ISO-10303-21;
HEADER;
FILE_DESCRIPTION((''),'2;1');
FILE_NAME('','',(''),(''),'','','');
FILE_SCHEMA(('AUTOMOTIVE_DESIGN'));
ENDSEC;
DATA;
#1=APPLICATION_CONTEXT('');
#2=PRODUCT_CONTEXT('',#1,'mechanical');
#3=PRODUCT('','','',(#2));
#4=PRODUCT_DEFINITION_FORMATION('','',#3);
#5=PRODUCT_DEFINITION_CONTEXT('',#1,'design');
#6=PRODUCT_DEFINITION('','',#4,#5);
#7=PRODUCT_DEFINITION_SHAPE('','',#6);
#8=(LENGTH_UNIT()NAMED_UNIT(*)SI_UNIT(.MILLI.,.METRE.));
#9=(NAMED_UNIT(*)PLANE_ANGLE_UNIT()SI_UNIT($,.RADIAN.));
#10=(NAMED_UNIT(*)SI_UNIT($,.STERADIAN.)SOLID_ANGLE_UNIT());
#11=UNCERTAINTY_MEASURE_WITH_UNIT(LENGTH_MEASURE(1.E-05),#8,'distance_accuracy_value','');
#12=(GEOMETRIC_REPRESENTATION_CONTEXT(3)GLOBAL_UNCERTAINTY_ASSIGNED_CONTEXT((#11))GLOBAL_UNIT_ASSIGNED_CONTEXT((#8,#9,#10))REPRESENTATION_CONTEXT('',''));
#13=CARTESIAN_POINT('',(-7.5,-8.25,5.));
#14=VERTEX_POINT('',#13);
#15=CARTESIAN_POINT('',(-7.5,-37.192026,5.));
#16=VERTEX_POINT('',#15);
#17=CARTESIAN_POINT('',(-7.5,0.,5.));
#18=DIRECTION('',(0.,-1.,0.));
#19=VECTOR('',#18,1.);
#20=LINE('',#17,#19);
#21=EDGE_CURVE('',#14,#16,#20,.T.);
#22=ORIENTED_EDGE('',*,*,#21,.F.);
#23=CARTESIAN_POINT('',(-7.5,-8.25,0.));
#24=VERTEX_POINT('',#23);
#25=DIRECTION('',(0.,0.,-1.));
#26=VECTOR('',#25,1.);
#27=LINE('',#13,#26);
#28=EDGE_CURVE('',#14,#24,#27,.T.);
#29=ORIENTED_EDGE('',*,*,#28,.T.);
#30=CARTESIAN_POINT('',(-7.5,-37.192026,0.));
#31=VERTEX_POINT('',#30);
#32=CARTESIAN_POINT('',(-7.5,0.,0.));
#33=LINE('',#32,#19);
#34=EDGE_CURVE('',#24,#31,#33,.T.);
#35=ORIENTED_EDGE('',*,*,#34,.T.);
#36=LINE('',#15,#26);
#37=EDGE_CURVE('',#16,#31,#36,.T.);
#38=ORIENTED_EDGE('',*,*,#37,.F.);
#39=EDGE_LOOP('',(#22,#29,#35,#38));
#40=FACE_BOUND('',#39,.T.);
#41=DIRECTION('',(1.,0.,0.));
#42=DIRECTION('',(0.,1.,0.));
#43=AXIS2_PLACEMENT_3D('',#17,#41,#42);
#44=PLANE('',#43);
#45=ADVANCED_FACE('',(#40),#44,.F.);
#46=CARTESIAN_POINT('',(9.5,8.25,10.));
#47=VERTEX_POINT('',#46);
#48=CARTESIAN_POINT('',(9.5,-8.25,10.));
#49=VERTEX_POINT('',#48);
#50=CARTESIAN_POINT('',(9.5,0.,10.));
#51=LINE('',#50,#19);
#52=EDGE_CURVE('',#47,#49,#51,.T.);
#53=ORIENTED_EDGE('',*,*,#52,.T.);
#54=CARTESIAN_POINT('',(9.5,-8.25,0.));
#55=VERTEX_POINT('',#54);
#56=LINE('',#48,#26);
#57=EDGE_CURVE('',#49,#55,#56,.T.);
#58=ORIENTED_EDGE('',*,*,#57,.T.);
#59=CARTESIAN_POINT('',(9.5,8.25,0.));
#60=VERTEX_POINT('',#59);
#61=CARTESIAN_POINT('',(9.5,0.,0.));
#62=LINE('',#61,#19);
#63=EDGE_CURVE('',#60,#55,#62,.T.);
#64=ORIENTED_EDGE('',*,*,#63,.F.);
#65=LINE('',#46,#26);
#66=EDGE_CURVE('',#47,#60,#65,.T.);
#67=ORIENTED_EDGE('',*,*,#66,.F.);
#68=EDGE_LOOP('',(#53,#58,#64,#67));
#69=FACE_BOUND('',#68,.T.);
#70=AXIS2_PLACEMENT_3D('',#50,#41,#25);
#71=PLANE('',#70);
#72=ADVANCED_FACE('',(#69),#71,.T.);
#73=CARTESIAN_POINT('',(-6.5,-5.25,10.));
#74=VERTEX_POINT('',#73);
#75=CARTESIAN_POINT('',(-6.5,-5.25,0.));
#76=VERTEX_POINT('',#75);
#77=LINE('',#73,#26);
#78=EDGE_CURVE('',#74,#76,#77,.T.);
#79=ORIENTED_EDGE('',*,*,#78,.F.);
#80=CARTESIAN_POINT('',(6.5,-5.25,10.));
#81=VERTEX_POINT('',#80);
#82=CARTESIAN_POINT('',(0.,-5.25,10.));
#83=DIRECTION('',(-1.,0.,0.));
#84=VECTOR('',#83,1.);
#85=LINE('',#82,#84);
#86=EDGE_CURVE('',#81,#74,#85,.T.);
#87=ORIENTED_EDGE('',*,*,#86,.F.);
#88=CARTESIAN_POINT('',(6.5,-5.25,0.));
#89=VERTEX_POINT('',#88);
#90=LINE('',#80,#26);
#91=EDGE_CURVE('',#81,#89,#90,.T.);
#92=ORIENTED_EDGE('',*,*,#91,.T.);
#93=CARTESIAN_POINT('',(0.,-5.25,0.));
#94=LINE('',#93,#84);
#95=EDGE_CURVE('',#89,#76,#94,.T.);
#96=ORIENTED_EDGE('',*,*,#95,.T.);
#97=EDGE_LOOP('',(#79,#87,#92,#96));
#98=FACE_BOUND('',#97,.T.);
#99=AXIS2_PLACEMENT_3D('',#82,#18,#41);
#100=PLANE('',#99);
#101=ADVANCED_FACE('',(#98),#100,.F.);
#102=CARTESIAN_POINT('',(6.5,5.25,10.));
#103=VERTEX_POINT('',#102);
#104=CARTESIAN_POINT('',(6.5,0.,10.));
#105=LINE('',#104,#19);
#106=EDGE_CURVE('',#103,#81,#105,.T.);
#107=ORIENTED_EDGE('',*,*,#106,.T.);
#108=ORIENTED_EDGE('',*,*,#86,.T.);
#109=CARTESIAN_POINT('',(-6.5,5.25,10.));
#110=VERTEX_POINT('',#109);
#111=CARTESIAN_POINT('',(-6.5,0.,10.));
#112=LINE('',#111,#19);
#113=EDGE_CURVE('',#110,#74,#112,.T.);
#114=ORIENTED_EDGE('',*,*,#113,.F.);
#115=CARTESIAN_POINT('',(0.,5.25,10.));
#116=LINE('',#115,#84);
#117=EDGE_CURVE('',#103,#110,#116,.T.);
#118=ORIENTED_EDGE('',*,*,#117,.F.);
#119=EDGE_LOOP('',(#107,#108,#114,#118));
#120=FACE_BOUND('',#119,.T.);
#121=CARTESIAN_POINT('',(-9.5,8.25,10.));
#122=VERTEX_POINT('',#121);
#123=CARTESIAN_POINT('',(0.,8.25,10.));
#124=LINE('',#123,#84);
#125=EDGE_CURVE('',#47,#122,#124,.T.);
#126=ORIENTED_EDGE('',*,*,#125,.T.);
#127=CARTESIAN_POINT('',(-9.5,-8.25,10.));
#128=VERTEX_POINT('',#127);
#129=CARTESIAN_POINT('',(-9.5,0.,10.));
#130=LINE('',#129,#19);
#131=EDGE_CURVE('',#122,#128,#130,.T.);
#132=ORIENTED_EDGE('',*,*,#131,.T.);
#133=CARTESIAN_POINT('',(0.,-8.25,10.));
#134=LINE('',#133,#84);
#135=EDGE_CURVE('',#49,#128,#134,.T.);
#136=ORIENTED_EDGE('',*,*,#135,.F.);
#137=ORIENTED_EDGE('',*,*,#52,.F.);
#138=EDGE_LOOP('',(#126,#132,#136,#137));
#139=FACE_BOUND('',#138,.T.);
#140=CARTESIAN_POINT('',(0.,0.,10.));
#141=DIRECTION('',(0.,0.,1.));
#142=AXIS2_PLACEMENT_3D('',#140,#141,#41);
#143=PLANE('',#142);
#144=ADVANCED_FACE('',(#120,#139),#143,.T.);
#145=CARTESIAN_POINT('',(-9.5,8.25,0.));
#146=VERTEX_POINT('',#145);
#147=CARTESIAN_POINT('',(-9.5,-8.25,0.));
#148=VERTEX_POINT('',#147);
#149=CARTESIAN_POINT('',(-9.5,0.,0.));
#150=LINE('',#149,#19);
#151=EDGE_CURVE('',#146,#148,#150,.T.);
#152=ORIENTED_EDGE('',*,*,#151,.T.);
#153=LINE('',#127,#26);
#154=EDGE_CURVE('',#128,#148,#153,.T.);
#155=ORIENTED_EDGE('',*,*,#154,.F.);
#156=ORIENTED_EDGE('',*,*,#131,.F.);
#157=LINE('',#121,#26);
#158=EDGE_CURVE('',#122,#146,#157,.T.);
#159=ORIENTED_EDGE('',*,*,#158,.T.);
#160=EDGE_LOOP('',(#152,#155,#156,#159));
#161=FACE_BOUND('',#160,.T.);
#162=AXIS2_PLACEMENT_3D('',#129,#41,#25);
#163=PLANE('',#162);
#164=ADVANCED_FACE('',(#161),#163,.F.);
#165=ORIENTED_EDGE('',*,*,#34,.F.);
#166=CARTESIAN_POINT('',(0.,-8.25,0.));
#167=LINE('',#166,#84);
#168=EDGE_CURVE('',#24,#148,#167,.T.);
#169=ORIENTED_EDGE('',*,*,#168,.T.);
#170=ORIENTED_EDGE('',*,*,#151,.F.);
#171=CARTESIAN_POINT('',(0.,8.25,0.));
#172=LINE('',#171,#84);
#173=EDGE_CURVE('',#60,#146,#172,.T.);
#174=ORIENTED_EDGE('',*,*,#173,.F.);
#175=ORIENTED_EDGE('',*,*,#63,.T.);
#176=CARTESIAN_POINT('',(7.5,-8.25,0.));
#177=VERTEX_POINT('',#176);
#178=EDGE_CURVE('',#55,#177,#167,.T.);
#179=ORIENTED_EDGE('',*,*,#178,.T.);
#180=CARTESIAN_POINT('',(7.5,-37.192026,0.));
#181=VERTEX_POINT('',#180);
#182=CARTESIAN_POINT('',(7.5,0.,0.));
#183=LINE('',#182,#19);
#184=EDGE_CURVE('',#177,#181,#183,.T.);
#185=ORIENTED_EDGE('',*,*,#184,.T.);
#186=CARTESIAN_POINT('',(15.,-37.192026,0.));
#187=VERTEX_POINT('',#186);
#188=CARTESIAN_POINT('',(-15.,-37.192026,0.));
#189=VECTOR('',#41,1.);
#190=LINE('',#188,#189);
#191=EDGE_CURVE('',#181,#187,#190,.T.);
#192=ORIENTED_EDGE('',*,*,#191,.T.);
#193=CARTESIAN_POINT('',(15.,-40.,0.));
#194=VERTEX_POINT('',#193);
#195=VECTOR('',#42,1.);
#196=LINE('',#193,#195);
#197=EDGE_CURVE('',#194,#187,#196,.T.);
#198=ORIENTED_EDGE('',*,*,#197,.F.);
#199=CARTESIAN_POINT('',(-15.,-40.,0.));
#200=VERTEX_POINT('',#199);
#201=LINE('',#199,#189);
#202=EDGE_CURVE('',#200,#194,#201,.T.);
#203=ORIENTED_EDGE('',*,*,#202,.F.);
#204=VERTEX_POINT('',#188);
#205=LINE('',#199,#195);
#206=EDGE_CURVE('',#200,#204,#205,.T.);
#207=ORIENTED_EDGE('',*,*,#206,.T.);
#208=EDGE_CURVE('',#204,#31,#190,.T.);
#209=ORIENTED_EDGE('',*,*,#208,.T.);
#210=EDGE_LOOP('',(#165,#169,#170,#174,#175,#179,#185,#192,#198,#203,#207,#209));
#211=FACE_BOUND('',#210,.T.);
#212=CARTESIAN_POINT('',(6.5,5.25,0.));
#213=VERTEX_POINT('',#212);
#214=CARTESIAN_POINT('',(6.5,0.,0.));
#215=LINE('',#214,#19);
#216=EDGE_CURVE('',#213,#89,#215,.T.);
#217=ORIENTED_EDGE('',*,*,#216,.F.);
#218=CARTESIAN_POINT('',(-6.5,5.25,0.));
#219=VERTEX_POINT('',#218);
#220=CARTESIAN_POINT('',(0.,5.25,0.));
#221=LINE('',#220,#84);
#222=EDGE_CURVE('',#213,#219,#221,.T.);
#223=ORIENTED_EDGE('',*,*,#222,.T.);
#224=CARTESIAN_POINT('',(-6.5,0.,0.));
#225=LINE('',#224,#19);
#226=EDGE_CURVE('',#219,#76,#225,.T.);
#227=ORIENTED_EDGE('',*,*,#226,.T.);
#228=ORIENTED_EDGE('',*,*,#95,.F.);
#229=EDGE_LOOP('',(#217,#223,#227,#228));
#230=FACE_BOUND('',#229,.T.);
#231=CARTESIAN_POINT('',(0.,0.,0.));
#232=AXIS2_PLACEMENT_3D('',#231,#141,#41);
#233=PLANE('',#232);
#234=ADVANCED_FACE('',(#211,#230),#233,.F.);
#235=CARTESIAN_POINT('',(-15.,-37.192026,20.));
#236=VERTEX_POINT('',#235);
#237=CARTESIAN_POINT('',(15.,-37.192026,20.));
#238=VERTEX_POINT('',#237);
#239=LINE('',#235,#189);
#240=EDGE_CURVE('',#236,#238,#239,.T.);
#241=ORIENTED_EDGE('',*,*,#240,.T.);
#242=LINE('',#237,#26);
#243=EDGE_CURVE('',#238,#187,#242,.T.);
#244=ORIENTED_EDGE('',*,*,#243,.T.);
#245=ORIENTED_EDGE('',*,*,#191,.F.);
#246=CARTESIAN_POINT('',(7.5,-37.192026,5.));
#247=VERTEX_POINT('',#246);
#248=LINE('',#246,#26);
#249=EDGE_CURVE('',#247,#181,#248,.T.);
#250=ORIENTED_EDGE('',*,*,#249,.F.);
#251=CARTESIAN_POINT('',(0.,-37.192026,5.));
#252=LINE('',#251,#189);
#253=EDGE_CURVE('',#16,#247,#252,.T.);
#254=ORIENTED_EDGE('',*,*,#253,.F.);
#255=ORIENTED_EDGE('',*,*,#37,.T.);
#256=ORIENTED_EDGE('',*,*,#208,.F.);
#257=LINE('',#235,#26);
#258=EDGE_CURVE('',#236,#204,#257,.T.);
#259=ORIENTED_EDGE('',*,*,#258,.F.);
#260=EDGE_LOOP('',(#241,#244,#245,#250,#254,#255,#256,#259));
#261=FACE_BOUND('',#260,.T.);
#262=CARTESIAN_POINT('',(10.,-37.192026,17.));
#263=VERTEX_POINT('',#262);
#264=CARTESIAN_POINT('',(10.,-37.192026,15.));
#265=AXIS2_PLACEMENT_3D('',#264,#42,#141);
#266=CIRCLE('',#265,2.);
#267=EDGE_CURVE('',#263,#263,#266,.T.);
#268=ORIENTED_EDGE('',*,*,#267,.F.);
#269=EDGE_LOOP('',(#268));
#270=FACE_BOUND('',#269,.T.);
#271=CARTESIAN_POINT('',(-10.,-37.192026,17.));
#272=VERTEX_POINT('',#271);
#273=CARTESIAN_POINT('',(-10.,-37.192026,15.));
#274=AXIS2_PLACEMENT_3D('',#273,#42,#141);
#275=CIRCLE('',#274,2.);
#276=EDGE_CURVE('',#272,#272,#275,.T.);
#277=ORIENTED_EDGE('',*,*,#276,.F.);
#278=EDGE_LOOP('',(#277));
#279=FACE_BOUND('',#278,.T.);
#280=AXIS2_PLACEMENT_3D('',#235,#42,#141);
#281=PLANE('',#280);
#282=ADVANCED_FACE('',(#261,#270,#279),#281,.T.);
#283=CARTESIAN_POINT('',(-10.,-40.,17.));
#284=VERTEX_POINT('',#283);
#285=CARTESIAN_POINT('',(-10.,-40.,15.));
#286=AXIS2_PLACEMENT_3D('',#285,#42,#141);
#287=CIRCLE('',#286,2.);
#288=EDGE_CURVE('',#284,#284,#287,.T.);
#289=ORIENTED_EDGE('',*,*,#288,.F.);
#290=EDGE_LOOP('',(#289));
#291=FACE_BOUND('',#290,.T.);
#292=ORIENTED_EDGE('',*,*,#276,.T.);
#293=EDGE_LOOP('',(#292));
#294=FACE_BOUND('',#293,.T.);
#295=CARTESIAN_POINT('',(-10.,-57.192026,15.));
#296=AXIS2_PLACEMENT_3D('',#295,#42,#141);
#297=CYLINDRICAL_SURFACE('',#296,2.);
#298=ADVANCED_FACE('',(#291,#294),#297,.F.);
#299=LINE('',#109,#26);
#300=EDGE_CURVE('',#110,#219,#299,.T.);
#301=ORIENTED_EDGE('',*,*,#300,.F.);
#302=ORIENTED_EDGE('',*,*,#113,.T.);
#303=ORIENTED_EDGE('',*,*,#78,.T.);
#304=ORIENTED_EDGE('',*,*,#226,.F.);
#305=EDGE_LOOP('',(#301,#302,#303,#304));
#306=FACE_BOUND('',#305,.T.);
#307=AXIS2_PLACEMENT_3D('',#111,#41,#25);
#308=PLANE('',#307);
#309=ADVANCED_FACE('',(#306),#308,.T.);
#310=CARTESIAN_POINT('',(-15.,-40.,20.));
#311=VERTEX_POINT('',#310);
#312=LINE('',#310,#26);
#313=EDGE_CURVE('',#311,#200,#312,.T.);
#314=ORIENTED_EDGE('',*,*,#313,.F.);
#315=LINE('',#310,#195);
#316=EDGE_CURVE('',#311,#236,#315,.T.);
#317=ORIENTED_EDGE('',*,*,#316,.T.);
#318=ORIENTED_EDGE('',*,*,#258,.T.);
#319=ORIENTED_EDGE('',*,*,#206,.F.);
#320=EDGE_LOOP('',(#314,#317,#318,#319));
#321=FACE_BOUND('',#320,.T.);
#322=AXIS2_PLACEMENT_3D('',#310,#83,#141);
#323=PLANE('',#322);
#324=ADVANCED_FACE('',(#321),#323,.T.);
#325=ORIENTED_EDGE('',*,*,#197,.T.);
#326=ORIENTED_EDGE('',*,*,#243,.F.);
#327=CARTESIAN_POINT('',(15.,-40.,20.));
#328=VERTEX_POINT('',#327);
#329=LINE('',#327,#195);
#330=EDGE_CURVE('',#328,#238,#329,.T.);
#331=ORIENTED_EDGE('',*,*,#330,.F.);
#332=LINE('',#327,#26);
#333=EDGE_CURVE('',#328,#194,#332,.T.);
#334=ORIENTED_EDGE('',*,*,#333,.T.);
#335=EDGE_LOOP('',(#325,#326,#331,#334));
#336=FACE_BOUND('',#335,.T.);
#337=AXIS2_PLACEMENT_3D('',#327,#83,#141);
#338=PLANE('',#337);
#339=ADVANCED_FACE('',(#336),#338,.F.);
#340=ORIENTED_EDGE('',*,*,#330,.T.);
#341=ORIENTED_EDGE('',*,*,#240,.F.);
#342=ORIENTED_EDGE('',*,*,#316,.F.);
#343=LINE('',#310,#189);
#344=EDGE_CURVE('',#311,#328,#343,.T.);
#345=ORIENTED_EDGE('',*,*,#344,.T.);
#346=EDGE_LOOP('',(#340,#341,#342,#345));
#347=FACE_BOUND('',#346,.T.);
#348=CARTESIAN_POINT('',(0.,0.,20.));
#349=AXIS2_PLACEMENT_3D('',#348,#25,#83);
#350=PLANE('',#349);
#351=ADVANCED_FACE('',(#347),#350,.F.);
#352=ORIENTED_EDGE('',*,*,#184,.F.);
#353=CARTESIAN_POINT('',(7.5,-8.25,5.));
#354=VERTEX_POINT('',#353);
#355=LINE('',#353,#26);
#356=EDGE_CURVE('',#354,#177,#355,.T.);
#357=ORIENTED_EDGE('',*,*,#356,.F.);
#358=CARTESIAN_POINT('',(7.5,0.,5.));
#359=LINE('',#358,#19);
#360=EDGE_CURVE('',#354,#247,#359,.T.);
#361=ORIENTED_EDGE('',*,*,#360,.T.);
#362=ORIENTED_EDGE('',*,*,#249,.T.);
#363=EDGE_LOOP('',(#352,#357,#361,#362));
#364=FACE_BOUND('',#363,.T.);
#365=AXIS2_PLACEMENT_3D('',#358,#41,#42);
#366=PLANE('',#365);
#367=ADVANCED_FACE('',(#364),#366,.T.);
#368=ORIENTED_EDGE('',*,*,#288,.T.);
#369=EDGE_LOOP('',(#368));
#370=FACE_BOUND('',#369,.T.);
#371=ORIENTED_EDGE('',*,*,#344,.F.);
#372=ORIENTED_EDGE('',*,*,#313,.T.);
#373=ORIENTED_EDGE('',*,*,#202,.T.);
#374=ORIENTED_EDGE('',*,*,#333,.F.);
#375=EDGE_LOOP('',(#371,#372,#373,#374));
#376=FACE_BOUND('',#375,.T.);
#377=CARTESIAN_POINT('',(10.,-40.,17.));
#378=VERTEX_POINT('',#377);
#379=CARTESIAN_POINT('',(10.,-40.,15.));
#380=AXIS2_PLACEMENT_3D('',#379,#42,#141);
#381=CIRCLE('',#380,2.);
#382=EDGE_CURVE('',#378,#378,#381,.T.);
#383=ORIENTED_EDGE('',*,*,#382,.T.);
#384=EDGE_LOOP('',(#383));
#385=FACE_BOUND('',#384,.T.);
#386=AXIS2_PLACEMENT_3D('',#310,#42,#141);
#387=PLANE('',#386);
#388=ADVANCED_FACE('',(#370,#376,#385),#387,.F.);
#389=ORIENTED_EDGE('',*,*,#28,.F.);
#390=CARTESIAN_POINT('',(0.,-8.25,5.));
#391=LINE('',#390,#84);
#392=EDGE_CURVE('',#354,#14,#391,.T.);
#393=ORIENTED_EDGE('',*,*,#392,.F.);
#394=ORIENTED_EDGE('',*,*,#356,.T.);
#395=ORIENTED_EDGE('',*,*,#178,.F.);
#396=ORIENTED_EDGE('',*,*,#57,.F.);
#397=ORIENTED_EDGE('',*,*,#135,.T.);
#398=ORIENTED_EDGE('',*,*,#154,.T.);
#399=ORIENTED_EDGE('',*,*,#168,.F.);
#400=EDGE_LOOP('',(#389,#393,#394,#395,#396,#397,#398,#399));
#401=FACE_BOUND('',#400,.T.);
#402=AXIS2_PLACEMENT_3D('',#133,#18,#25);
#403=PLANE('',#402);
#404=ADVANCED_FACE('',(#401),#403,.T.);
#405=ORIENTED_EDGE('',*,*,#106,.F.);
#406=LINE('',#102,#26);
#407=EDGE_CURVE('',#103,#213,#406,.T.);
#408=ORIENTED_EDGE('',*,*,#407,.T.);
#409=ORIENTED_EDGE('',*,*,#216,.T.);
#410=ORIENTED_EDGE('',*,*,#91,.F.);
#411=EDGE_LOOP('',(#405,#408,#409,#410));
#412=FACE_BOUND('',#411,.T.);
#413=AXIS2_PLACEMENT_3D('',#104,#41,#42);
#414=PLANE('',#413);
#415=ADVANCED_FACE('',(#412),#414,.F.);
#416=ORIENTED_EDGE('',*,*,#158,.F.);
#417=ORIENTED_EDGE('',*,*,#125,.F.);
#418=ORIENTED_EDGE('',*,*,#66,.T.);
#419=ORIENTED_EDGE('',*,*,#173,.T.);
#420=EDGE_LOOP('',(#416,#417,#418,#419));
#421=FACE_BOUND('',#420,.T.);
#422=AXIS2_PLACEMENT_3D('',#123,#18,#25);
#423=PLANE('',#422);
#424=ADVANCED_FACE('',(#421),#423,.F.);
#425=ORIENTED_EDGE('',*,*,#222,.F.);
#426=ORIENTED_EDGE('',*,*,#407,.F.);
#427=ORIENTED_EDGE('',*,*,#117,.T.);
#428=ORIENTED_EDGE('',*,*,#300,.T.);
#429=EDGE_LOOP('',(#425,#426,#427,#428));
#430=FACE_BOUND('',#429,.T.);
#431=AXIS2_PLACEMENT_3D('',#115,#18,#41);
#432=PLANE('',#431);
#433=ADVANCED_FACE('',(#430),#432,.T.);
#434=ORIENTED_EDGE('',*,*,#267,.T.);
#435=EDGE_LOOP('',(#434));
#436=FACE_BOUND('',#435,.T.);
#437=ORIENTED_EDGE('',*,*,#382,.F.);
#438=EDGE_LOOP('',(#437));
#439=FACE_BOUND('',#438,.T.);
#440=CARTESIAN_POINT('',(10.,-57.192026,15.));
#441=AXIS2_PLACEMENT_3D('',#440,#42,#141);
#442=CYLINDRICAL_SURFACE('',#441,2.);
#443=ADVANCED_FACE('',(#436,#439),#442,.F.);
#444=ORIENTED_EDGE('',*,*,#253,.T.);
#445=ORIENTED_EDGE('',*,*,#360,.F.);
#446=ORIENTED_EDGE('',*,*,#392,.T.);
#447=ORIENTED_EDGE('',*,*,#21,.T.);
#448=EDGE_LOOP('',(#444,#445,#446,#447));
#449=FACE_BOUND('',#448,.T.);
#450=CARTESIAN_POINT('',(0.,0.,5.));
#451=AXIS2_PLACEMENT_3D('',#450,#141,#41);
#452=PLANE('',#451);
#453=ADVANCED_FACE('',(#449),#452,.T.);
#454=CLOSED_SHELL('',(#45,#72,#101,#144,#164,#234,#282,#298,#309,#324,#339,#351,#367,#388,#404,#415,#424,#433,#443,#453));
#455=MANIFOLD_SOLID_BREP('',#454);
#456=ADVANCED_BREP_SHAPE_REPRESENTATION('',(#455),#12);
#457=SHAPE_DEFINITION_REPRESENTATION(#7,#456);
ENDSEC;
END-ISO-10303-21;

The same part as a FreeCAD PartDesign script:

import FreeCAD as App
import Part
import Sketcher

V = App.Vector
Q = App.Units.Quantity


def add_polygon(sketch, points):
    """Adds a closed chain of lines whose ends are joined by coincident constraints."""
    first, n = sketch.GeometryCount, len(points)
    for a, b in zip(points, points[1:] + points[:1]):
        sketch.addGeometry(Part.LineSegment(App.Vector(*a, 0), App.Vector(*b, 0)), False)
    for i in range(n):
        sketch.addConstraint(Sketcher.Constraint("Coincident", first + i, 2, first + (i + 1) % n, 1))

doc = App.newDocument("Part")
body = doc.addObject("PartDesign::Body", "Body")

# Sketch on XY plane
sketch1 = body.newObject("Sketcher::SketchObject", "Sketch")
sketch1.AttachmentSupport = (doc.getObject("XY_Plane"), [""])
sketch1.MapMode = "FlatFace"
add_polygon(sketch1, [(10, -8), (10, 8), (-10, 8), (-10, -8)])  # lines 0-3
add_polygon(sketch1, [(6, 5), (6, -5), (-6, -5), (-6, 5)])  # lines 4-7
sketch1.addConstraint(Sketcher.Constraint("Vertical", 0))
sketch1.addConstraint(Sketcher.Constraint("Horizontal", 1))
sketch1.addConstraint(Sketcher.Constraint("Vertical", 2))
sketch1.addConstraint(Sketcher.Constraint("Horizontal", 3))
sketch1.addConstraint(Sketcher.Constraint("Vertical", 4))
sketch1.addConstraint(Sketcher.Constraint("Horizontal", 5))
sketch1.addConstraint(Sketcher.Constraint("Vertical", 6))
sketch1.addConstraint(Sketcher.Constraint("Horizontal", 7))
sketch1.addConstraint(Sketcher.Constraint("Symmetric", 0, 2, 2, 2, -1, 1))
sketch1.addConstraint(Sketcher.Constraint("Symmetric", 4, 2, 6, 2, -1, 1))
sketch1.addConstraint(Sketcher.Constraint("DistanceX", 1, 2, 1, 1, Q("19 mm")))
sketch1.addConstraint(Sketcher.Constraint("DistanceX", 5, 2, 5, 1, Q("13 mm")))
sketch1.addConstraint(Sketcher.Constraint("DistanceY", 0, 1, 0, 2, Q("16.5 mm")))
sketch1.addConstraint(Sketcher.Constraint("DistanceY", 4, 2, 4, 1, Q("10.5 mm")))
pad1 = body.newObject("PartDesign::Pad", "Pad")
pad1.Profile = sketch1
pad1.Length = 10

# Sketch on XY plane
sketch2 = body.newObject("Sketcher::SketchObject", "Sketch001")
sketch2.AttachmentSupport = (doc.getObject("XY_Plane"), [""])
sketch2.MapMode = "FlatFace"
add_polygon(sketch2, [(-8, -8), (-8, -37), (8, -37), (8, -8)])  # lines 0-3
sketch2.addConstraint(Sketcher.Constraint("Vertical", 0))
sketch2.addConstraint(Sketcher.Constraint("Horizontal", 1))
sketch2.addConstraint(Sketcher.Constraint("Vertical", 2))
sketch2.addConstraint(Sketcher.Constraint("Horizontal", 3))
sketch2.addConstraint(Sketcher.Constraint("DistanceX", 1, 1, 1, 2, Q("15 mm")))
sketch2.addConstraint(Sketcher.Constraint("DistanceX", 0, 2, -1, 1, Q("7.5 mm")))
sketch2.addConstraint(Sketcher.Constraint("DistanceY", 2, 2, -1, 1, Q("8.25 mm")))
sketch2.addConstraint(Sketcher.Constraint("DistanceY", 0, 2, 0, 1, Q("28.942026 mm")))
pad2 = body.newObject("PartDesign::Pad", "Pad001")
pad2.Profile = sketch2
pad2.Length = 5

# Sketch on XY plane
sketch3 = body.newObject("Sketcher::SketchObject", "Sketch002")
sketch3.AttachmentSupport = (doc.getObject("XY_Plane"), [""])
sketch3.MapMode = "FlatFace"
add_polygon(sketch3, [(-15, -37.2), (-15, -40), (15, -40), (15, -37.2)])  # lines 0-3
sketch3.addConstraint(Sketcher.Constraint("Vertical", 0))
sketch3.addConstraint(Sketcher.Constraint("Horizontal", 1))
sketch3.addConstraint(Sketcher.Constraint("Vertical", 2))
sketch3.addConstraint(Sketcher.Constraint("Horizontal", 3))
sketch3.addConstraint(Sketcher.Constraint("DistanceX", 1, 1, 1, 2, Q("30 mm")))
sketch3.addConstraint(Sketcher.Constraint("DistanceX", 0, 2, -1, 1, Q("15 mm")))
sketch3.addConstraint(Sketcher.Constraint("DistanceY", 0, 2, -1, 1, Q("40 mm")))
sketch3.addConstraint(Sketcher.Constraint("DistanceY", 0, 2, 0, 1, Q("2.807974 mm")))
pad3 = body.newObject("PartDesign::Pad", "Pad002")
pad3.Profile = sketch3
pad3.Length = 20

# Sketch on XZ plane
sketch4 = body.newObject("Sketcher::SketchObject", "Sketch003")
sketch4.AttachmentSupport = (doc.getObject("XZ_Plane"), [""])
sketch4.MapMode = "FlatFace"
sketch4.AttachmentOffset = App.Placement(V(0, 0, 37.192026), App.Rotation())
sketch4.addGeometry(Part.Circle(V(-10, 15, 0), V(0, 0, 1), 2), False)
sketch4.addGeometry(Part.Circle(V(10, 15, 0), V(0, 0, 1), 2), False)
sketch4.addConstraint(Sketcher.Constraint("Equal", 0, 1))
sketch4.addConstraint(Sketcher.Constraint("Symmetric", 0, 3, 1, 3, -2))
sketch4.addConstraint(Sketcher.Constraint("Diameter", 0, Q("4 mm")))
sketch4.addConstraint(Sketcher.Constraint("DistanceX", 0, 3, -1, 1, Q("10 mm")))
sketch4.addConstraint(Sketcher.Constraint("DistanceY", -1, 1, 0, 3, Q("15 mm")))
pocket1 = body.newObject("PartDesign::Pocket", "Pocket")
pocket1.Profile = sketch4
pocket1.Length = 20
pocket1.Reversed = True

doc.recompute()
